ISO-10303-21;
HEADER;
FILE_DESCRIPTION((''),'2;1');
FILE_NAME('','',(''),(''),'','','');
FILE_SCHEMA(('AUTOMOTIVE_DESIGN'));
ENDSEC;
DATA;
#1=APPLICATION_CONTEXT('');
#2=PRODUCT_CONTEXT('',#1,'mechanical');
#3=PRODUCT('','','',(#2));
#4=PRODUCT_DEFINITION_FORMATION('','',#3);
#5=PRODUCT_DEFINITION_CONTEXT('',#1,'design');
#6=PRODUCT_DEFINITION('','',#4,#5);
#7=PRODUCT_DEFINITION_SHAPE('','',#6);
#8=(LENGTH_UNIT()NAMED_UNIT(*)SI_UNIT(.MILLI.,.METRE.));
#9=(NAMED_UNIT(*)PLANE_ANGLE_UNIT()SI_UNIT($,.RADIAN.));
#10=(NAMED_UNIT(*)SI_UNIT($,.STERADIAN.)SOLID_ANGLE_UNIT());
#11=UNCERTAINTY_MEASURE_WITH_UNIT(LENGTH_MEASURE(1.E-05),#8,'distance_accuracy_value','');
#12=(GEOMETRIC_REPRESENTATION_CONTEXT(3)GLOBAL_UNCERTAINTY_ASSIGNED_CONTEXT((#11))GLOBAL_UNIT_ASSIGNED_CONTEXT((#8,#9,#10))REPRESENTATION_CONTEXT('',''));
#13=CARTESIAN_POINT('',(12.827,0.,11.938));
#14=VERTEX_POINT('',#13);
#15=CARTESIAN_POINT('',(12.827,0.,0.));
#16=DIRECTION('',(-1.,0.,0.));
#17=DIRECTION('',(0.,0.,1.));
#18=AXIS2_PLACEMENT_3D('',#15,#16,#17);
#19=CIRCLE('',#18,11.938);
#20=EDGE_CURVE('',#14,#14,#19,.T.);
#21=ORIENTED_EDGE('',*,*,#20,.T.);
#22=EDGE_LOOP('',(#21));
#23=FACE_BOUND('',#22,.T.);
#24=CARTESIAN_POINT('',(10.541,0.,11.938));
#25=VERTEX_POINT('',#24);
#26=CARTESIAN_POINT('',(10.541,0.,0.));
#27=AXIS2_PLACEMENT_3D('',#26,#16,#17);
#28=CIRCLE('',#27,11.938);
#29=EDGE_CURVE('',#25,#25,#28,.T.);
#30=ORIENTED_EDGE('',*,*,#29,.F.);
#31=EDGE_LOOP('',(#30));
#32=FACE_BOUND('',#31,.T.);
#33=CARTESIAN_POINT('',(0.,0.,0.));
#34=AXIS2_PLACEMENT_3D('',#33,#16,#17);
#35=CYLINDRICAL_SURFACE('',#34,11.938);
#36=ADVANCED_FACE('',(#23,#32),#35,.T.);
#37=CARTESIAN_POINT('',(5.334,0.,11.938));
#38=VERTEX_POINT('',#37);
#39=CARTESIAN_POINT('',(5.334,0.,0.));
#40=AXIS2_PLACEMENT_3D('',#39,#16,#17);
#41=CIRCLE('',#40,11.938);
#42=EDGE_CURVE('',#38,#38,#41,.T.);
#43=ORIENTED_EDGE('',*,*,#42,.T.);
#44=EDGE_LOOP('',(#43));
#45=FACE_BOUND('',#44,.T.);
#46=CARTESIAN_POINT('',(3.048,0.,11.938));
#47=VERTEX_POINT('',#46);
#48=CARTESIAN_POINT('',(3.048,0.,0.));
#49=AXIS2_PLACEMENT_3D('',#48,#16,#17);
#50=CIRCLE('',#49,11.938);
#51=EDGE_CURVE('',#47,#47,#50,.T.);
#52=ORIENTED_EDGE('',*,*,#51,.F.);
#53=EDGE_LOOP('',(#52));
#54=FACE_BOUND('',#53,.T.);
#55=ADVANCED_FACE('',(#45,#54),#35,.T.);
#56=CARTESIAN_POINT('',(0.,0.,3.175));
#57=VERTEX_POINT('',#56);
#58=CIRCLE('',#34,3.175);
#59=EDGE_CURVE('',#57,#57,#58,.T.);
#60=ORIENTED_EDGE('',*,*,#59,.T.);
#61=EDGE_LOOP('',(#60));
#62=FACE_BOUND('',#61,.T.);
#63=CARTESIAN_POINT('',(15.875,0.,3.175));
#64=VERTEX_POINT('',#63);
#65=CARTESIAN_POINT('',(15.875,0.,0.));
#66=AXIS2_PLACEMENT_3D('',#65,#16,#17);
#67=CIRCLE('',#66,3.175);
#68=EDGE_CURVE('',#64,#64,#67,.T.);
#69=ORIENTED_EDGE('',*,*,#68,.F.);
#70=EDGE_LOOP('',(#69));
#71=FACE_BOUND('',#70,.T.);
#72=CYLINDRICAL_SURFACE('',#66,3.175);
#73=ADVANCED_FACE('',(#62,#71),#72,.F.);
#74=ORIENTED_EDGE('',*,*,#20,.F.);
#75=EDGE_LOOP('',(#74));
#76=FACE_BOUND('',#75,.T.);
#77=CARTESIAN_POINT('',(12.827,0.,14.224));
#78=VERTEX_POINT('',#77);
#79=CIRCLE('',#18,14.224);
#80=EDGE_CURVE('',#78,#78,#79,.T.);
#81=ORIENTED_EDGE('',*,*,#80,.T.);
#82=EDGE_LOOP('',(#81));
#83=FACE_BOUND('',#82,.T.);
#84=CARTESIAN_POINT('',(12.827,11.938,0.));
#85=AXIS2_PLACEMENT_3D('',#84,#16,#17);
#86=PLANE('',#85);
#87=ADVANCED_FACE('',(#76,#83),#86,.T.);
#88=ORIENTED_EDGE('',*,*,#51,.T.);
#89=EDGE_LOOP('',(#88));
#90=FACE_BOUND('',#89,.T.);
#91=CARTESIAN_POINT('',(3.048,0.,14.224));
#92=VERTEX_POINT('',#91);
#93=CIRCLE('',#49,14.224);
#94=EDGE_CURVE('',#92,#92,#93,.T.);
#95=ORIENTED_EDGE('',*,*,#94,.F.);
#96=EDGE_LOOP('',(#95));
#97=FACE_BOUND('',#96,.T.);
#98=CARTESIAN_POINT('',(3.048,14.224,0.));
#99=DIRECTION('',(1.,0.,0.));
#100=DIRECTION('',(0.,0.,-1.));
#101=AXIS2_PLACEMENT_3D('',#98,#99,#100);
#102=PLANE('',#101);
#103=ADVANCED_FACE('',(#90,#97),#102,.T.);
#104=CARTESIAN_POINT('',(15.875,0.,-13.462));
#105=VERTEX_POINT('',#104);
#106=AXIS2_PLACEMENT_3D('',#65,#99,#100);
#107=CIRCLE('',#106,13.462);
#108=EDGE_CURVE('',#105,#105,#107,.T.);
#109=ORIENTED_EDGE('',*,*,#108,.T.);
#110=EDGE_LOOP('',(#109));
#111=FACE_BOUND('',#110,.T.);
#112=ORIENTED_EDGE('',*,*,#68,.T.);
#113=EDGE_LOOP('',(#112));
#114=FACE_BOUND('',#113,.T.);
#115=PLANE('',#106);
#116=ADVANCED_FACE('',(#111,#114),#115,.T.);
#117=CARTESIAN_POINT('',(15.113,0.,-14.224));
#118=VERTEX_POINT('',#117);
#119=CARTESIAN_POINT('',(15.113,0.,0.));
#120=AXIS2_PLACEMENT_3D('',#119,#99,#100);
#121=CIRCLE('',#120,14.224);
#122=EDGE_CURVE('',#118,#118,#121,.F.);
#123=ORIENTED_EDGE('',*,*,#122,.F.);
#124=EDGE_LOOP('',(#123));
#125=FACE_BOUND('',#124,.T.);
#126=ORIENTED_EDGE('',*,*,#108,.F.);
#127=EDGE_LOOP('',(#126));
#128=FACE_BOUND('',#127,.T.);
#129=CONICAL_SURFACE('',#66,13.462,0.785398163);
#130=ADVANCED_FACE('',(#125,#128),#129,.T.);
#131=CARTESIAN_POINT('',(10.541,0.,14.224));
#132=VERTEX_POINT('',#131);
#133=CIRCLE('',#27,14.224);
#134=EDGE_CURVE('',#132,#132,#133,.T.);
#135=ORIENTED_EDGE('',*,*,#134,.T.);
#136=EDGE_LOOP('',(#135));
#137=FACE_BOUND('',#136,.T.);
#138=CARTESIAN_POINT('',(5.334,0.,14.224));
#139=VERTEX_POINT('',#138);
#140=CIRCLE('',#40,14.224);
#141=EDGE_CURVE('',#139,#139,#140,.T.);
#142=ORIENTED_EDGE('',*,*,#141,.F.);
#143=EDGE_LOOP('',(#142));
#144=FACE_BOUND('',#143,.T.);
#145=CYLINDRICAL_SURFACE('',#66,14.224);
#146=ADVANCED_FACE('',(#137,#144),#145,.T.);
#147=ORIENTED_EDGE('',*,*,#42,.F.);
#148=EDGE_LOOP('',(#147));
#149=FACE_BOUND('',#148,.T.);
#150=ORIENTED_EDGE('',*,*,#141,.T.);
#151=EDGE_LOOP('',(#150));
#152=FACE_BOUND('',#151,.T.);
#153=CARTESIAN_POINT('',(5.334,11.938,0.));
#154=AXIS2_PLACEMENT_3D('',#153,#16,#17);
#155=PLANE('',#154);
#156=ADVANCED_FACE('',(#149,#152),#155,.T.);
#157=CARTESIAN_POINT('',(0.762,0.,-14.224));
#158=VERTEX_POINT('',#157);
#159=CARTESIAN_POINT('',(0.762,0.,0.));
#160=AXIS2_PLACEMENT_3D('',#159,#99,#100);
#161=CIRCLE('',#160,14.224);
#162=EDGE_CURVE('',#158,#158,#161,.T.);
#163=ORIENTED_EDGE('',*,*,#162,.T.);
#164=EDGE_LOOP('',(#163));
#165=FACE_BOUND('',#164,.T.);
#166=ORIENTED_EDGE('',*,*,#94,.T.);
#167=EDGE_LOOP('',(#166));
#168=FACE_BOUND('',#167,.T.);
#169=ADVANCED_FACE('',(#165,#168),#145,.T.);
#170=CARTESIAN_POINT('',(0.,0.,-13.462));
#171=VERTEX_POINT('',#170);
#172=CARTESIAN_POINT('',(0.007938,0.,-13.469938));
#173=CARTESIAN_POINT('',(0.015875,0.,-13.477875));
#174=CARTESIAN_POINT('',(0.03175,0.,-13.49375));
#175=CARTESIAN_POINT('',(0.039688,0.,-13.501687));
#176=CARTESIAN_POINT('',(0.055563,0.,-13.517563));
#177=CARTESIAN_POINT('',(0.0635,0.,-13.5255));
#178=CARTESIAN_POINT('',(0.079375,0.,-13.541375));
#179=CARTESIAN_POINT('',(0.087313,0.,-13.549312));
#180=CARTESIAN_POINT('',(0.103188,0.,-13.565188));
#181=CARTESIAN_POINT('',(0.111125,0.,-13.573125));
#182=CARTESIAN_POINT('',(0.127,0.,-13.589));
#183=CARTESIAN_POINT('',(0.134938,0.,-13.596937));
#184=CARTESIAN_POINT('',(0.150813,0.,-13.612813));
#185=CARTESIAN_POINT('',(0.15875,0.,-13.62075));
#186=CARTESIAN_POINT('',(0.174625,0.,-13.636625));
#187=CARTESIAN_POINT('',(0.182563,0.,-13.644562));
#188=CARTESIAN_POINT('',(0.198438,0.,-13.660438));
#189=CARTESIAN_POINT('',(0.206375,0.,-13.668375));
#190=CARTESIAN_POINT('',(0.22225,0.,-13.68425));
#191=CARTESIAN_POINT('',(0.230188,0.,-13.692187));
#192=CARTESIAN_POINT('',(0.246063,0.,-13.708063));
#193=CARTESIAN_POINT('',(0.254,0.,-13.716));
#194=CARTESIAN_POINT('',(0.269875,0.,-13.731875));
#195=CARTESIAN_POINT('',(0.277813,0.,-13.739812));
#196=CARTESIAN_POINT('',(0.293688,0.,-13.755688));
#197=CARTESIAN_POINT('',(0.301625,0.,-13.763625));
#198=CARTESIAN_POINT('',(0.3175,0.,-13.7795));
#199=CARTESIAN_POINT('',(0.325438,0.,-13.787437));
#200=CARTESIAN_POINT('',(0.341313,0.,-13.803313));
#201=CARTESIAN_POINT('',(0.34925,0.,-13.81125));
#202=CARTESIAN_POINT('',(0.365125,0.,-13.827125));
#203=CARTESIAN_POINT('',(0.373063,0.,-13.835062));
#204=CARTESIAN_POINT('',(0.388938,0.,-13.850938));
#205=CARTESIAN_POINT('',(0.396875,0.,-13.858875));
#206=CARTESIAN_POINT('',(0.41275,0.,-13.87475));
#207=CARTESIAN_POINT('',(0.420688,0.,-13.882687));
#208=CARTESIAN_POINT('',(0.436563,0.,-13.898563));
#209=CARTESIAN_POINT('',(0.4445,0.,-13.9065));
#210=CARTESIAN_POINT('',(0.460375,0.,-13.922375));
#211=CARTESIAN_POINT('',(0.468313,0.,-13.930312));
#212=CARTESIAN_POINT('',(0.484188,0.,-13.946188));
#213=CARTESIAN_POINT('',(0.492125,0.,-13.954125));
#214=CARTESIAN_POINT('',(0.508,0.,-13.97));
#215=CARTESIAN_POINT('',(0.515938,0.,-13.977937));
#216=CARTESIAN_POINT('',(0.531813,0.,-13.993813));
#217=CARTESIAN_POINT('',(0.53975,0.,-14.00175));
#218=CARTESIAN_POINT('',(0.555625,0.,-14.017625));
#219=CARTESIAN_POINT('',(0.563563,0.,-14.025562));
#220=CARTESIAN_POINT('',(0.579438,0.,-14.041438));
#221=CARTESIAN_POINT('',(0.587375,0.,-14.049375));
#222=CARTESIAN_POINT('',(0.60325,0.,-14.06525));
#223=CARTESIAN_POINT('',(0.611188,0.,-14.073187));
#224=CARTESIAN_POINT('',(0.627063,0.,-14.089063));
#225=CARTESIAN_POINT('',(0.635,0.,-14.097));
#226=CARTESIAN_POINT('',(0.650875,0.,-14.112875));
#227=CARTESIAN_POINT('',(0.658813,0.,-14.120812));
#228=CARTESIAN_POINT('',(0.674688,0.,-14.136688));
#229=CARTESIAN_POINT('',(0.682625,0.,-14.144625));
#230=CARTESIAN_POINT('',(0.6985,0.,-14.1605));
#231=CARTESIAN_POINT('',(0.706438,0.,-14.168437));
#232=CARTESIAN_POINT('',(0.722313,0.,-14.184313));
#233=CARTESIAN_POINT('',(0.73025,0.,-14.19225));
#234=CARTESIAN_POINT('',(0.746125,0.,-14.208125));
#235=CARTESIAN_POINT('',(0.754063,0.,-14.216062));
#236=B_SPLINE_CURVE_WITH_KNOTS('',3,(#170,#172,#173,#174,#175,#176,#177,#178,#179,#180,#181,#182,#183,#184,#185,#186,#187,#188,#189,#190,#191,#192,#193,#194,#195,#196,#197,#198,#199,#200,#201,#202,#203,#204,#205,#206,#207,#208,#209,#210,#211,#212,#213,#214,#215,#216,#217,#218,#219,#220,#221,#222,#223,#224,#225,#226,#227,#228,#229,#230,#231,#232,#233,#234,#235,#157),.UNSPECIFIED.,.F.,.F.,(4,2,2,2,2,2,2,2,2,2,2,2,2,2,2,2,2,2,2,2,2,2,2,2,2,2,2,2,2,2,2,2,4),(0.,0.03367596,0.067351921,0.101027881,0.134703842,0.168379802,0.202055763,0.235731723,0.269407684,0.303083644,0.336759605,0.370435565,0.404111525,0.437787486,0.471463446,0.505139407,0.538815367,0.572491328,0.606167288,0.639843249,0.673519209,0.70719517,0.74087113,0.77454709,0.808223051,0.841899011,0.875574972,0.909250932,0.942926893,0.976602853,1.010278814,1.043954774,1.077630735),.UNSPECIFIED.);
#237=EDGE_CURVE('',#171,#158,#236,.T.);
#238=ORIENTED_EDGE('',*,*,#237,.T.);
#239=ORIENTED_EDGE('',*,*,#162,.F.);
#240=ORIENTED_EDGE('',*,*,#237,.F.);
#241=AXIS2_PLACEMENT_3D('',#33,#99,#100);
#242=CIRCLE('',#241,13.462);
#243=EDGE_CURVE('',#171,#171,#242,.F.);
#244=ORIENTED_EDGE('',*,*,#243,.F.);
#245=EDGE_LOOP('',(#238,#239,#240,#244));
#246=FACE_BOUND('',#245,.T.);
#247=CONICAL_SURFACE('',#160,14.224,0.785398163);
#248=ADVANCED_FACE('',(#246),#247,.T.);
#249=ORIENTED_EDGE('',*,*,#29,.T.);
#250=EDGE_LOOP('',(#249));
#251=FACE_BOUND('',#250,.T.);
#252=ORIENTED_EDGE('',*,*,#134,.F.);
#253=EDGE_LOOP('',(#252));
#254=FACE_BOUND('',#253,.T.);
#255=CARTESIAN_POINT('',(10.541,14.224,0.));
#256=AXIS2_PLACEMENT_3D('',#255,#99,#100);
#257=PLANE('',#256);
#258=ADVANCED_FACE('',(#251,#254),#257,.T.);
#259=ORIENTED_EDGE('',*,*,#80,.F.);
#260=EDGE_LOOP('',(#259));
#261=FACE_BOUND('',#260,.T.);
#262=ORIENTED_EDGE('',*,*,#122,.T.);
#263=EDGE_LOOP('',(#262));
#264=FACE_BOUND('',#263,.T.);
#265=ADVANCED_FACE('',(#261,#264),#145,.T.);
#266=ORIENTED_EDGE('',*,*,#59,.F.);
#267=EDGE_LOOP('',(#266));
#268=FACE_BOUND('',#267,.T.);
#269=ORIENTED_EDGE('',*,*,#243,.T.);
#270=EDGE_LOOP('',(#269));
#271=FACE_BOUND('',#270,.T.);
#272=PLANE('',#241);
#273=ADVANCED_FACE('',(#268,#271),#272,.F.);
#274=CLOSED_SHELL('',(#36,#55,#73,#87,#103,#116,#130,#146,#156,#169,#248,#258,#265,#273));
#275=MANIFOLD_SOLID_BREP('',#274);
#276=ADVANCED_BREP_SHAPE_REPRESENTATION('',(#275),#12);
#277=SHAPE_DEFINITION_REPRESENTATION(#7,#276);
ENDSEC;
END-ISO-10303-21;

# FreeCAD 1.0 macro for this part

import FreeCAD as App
import Part
import Sketcher
Q = App.Units.Quantity


def edges_at(feature, points):
    """Names of the edges that pass closest to the given points."""
    edges = feature.Shape.Edges
    near = lambda p: min(range(len(edges)), key=lambda i: edges[i].distToShape(Part.Vertex(*p))[0])
    return sorted({f"Edge{near(p) + 1}" for p in points})

doc = App.newDocument("Part")
body = doc.addObject("PartDesign::Body", "Body")

sketch1 = doc.addObject("Sketcher::SketchObject", "Sketch")
body.addObject(sketch1)
sketch1.AttachmentSupport = (doc.YZ_Plane, [""])
sketch1.MapMode = "FlatFace"
sketch1.addGeometry(Part.Circle(App.Vector(0, 0, 0), App.Vector(0, 0, 1), 14), False)
sketch1.addConstraint([
    Sketcher.Constraint("Coincident", 0, 3, -1, 1),
    Sketcher.Constraint("Diameter", 0, Q("1.12 in")),
])
pad1 = doc.addObject("PartDesign::Pad", "Pad")
body.addObject(pad1)
pad1.Profile = sketch1
pad1.Length = Q("0.625 in")

sketch2 = doc.addObject("Sketcher::SketchObject", "Sketch001")
body.addObject(sketch2)
sketch2.AttachmentSupport = (doc.XY_Plane, [""])
sketch2.MapMode = "FlatFace"
sketch2.addGeometry([
    Part.LineSegment(App.Vector(3, 14.2, 0), App.Vector(3, 11.9, 0)),
    Part.LineSegment(App.Vector(3, 11.9, 0), App.Vector(5.3, 11.9, 0)),
    Part.LineSegment(App.Vector(5.3, 11.9, 0), App.Vector(5.3, 14.2, 0)),
    Part.LineSegment(App.Vector(5.3, 14.2, 0), App.Vector(3, 14.2, 0)),
    Part.LineSegment(App.Vector(10.5, 14.2, 0), App.Vector(10.5, 11.9, 0)),
    Part.LineSegment(App.Vector(10.5, 11.9, 0), App.Vector(12.8, 11.9, 0)),
    Part.LineSegment(App.Vector(12.8, 11.9, 0), App.Vector(12.8, 14.2, 0)),
    Part.LineSegment(App.Vector(12.8, 14.2, 0), App.Vector(10.5, 14.2, 0)),
], False)
sketch2.addConstraint([
    Sketcher.Constraint("Coincident", 0, 2, 1, 1),
    Sketcher.Constraint("Coincident", 1, 2, 2, 1),
    Sketcher.Constraint("Coincident", 2, 2, 3, 1),
    Sketcher.Constraint("Coincident", 3, 2, 0, 1),
    Sketcher.Constraint("Coincident", 4, 2, 5, 1),
    Sketcher.Constraint("Coincident", 5, 2, 6, 1),
    Sketcher.Constraint("Coincident", 6, 2, 7, 1),
    Sketcher.Constraint("Coincident", 7, 2, 4, 1),
    Sketcher.Constraint("Vertical", 0),
    Sketcher.Constraint("Horizontal", 1),
    Sketcher.Constraint("Vertical", 2),
    Sketcher.Constraint("Horizontal", 3),
    Sketcher.Constraint("Vertical", 4),
    Sketcher.Constraint("Horizontal", 5),
    Sketcher.Constraint("Vertical", 6),
    Sketcher.Constraint("Horizontal", 7),
    Sketcher.Constraint("Horizontal", 1, 2, 4, 2),
    Sketcher.Constraint("Horizontal", 3, 2, 6, 2),
    Sketcher.Constraint("Equal", 3, 5),
    Sketcher.Constraint("Equal", 7, 0),
    Sketcher.Constraint("DistanceX", 1, 1, 1, 2, Q("0.09 in")),
    Sketcher.Constraint("DistanceX", -1, 1, 0, 2, Q("0.12 in")),
    Sketcher.Constraint("DistanceY", -1, 1, 0, 2, Q("0.47 in")),
    Sketcher.Constraint("DistanceX", -1, 1, 4, 2, Q("0.415 in")),
])
groove = doc.addObject("PartDesign::Groove", "Groove")
body.addObject(groove)
groove.Profile = sketch2
groove.ReferenceAxis = (sketch2, ["H_Axis"])
groove.Angle = 360

sketch3 = doc.addObject("Sketcher::SketchObject", "Sketch002")
body.addObject(sketch3)
sketch3.AttachmentSupport = (doc.YZ_Plane, [""])
sketch3.MapMode = "FlatFace"
sketch3.addGeometry(Part.Circle(App.Vector(0, 0, 0), App.Vector(0, 0, 1), 3.2), False)
sketch3.addConstraint([
    Sketcher.Constraint("Coincident", 0, 3, -1, 1),
    Sketcher.Constraint("Diameter", 0, Q("0.25 in")),
])
pocket1 = doc.addObject("PartDesign::Pocket", "Pocket")
body.addObject(pocket1)
pocket1.Profile = sketch3
pocket1.Type = "ThroughAll"
pocket1.Reversed = True
doc.recompute()

chamfer = doc.addObject("PartDesign::Chamfer", "Chamfer")
body.addObject(chamfer)
chamfer.Base = (pocket1, edges_at(pocket1, [(0, 0, 14.224), (15.875, 0, 14.224)]))
chamfer.Size = Q("0.03 in")

doc.recompute()
